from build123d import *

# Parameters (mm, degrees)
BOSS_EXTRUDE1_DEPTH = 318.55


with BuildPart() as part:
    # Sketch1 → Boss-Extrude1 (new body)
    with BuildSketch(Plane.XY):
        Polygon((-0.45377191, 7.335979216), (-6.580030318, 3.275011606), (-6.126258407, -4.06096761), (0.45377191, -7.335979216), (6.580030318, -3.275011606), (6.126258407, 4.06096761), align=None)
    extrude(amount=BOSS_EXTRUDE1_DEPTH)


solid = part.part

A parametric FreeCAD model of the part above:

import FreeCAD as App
import Part
import Sketcher

V = App.Vector
Q = App.Units.Quantity


def add_polygon(sketch, points):
    """Adds a closed chain of lines whose ends are joined by coincident constraints."""
    first, n = sketch.GeometryCount, len(points)
    for a, b in zip(points, points[1:] + points[:1]):
        sketch.addGeometry(Part.LineSegment(App.Vector(*a, 0), App.Vector(*b, 0)), False)
    for i in range(n):
        sketch.addConstraint(Sketcher.Constraint("Coincident", first + i, 2, first + (i + 1) % n, 1))

doc = App.newDocument("Part")
body = doc.addObject("PartDesign::Body", "Body")

sketch1 = doc.addObject("Sketcher::SketchObject", "Sketch")
body.addObject(sketch1)
sketch1.AttachmentSupport = (doc.XY_Plane, [""])
sketch1.MapMode = "FlatFace"
add_polygon(sketch1, [(0, 7), (-7, 3), (-6, -4), (0, -7), (7, -3), (6, 4)])
sketch1.addConstraint([
    Sketcher.Constraint("Symmetric", 0, 2, 3, 2, -1, 1),
    Sketcher.Constraint("Symmetric", 1, 2, 4, 2, -1, 1),
    Sketcher.Constraint("Symmetric", 2, 2, 5, 2, -1, 1),
    Sketcher.Constraint("Equal", 0, 1),
    Sketcher.Constraint("Equal", 1, 2),
    Sketcher.Constraint("Distance", 0, Q("7.35 mm")),
    Sketcher.Constraint("DistanceX", 0, 2, -1, 1, Q("6.58003 mm")),
    Sketcher.Constraint("DistanceY", -1, 1, 0, 2, Q("3.275012 mm")),
    Sketcher.Constraint("DistanceX", 1, 2, -1, 1, Q("6.126258 mm")),
])
pad1 = doc.addObject("PartDesign::Pad", "Pad")
body.addObject(pad1)
pad1.Profile = sketch1
pad1.Length = 318.55

doc.recompute()
